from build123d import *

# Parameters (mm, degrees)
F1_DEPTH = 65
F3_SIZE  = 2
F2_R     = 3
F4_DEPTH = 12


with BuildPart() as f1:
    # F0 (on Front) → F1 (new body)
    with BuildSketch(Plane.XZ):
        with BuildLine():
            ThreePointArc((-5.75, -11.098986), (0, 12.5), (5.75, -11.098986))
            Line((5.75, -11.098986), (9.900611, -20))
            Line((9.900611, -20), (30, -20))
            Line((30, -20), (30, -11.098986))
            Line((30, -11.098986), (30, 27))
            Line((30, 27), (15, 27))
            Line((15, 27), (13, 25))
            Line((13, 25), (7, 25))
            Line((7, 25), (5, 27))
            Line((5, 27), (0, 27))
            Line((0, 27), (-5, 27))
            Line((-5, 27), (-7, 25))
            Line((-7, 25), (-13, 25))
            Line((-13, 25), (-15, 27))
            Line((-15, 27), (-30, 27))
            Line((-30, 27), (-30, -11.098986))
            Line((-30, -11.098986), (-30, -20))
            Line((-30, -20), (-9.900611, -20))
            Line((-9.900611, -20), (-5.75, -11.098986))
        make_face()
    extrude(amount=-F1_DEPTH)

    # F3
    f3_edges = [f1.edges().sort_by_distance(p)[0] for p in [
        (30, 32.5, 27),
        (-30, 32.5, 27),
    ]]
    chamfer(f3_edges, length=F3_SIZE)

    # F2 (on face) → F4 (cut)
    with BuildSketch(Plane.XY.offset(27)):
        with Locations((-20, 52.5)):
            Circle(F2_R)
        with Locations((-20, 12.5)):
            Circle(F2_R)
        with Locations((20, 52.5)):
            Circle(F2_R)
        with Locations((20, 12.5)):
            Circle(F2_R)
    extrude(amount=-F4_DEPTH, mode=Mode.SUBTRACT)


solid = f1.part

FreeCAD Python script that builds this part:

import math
import FreeCAD as App
import Part
import Sketcher
from FreeCAD import Vector
Q = App.Units.Quantity


def edges_at(feature, points):
    """Names of the edges that pass closest to the given points."""
    edges = feature.Shape.Edges
    near = lambda p: min(range(len(edges)), key=lambda i: edges[i].distToShape(Part.Vertex(*p))[0])
    return sorted({f"Edge{near(p) + 1}" for p in points})

doc = App.newDocument("Part")
params = doc.addObject("Spreadsheet::Sheet", "Params")
for row, (alias, value) in enumerate([
    ("sketch1_radius", "12.5 mm"),
    ("sketch1_width", "15 mm"),
    ("sketch1_width2", "6 mm"),
    ("sketch1_width3", "10 mm"),
    ("sketch1_height", "47 mm"),
    ("pad1_length", "65 mm"),
    ("chamfer_size", "2 mm"),
    ("sketch2_diameter", "6 mm"),
    ("pocket1_length", "12 mm"),
], start=1):
    params.set(f"A{row}", alias)
    params.set(f"B{row}", "=" + value)
    params.setAlias(f"B{row}", alias)

body = doc.addObject("PartDesign::Body", "Body")

sketch1 = body.newObject("Sketcher::SketchObject", "Sketch")
sketch1.AttachmentSupport = (doc.getObject("XZ_Plane"), [""])
sketch1.MapMode = "FlatFace"
sketch1.addGeometry(Part.ArcOfCircle(Part.Circle(Vector(0, 0, 0), Vector(0, 0, 1), 12.5), math.radians(-63), math.radians(243)), False)
sketch1.addGeometry(Part.LineSegment(Vector(5.8, -11.1, 0), Vector(9.9, -20, 0)), False)
sketch1.addGeometry(Part.LineSegment(Vector(9.9, -20, 0), Vector(30, -20, 0)), False)
sketch1.addGeometry(Part.LineSegment(Vector(30, -20, 0), Vector(30, 27, 0)), False)
sketch1.addGeometry(Part.LineSegment(Vector(30, 27, 0), Vector(15, 27, 0)), False)
sketch1.addGeometry(Part.LineSegment(Vector(15, 27, 0), Vector(13, 25, 0)), False)
sketch1.addGeometry(Part.LineSegment(Vector(13, 25, 0), Vector(7, 25, 0)), False)
sketch1.addGeometry(Part.LineSegment(Vector(7, 25, 0), Vector(5, 27, 0)), False)
sketch1.addGeometry(Part.LineSegment(Vector(5, 27, 0), Vector(-5, 27, 0)), False)
sketch1.addGeometry(Part.LineSegment(Vector(-5, 27, 0), Vector(-7, 25, 0)), False)
sketch1.addGeometry(Part.LineSegment(Vector(-7, 25, 0), Vector(-13, 25, 0)), False)
sketch1.addGeometry(Part.LineSegment(Vector(-13, 25, 0), Vector(-15, 27, 0)), False)
sketch1.addGeometry(Part.LineSegment(Vector(-15, 27, 0), Vector(-30, 27, 0)), False)
sketch1.addGeometry(Part.LineSegment(Vector(-30, 27, 0), Vector(-30, -20, 0)), False)
sketch1.addGeometry(Part.LineSegment(Vector(-30, -20, 0), Vector(-9.9, -20, 0)), False)
sketch1.addGeometry(Part.LineSegment(Vector(-9.9, -20, 0), Vector(-5.8, -11.1, 0)), False)
sketch1.addConstraint(Sketcher.Constraint("Coincident", 0, 1, 1, 1))
sketch1.addConstraint(Sketcher.Constraint("Coincident", 1, 2, 2, 1))
sketch1.addConstraint(Sketcher.Constraint("Coincident", 2, 2, 3, 1))
sketch1.addConstraint(Sketcher.Constraint("Coincident", 3, 2, 4, 1))
sketch1.addConstraint(Sketcher.Constraint("Coincident", 4, 2, 5, 1))
sketch1.addConstraint(Sketcher.Constraint("Coincident", 5, 2, 6, 1))
sketch1.addConstraint(Sketcher.Constraint("Coincident", 6, 2, 7, 1))
sketch1.addConstraint(Sketcher.Constraint("Coincident", 7, 2, 8, 1))
sketch1.addConstraint(Sketcher.Constraint("Coincident", 8, 2, 9, 1))
sketch1.addConstraint(Sketcher.Constraint("Coincident", 9, 2, 10, 1))
sketch1.addConstraint(Sketcher.Constraint("Coincident", 10, 2, 11, 1))
sketch1.addConstraint(Sketcher.Constraint("Coincident", 11, 2, 12, 1))
sketch1.addConstraint(Sketcher.Constraint("Coincident", 12, 2, 13, 1))
sketch1.addConstraint(Sketcher.Constraint("Coincident", 13, 2, 14, 1))
sketch1.addConstraint(Sketcher.Constraint("Coincident", 14, 2, 15, 1))
sketch1.addConstraint(Sketcher.Constraint("Coincident", 15, 2, 0, 2))
sketch1.addConstraint(Sketcher.Constraint("Horizontal", 2))
sketch1.addConstraint(Sketcher.Constraint("Vertical", 3))
sketch1.addConstraint(Sketcher.Constraint("Horizontal", 4))
sketch1.addConstraint(Sketcher.Constraint("Horizontal", 6))
sketch1.addConstraint(Sketcher.Constraint("Horizontal", 8))
sketch1.addConstraint(Sketcher.Constraint("Horizontal", 10))
sketch1.addConstraint(Sketcher.Constraint("Horizontal", 12))
sketch1.addConstraint(Sketcher.Constraint("Vertical", 13))
sketch1.addConstraint(Sketcher.Constraint("Horizontal", 14))
sketch1.addConstraint(Sketcher.Constraint("Coincident", 0, 3, -1, 1))
sketch1.addConstraint(Sketcher.Constraint("Symmetric", 6, 2, 9, 2, -2))
sketch1.addConstraint(Sketcher.Constraint("Symmetric", 4, 2, 11, 2, -2))
sketch1.addConstraint(Sketcher.Constraint("Symmetric", 2, 2, 13, 2, -2))
sketch1.addConstraint(Sketcher.Constraint("Perpendicular", 5, 7))
sketch1.addConstraint(Sketcher.Constraint("Perpendicular", 7, 9))
sketch1.addConstraint(Sketcher.Constraint("Perpendicular", 9, 11))
sketch1.addConstraint(Sketcher.Constraint("Horizontal", 4, 2, 7, 2))
sketch1.addConstraint(Sketcher.Constraint("Horizontal", 0, 1, 15, 2))
sketch1.addConstraint(Sketcher.Constraint("Equal", 6, 10))
sketch1.addConstraint(Sketcher.Constraint("Equal", 2, 14))
sketch1.addConstraint(Sketcher.Constraint("Radius", 0, 12.5))
sketch1.addConstraint(Sketcher.Constraint("DistanceX", 4, 2, 4, 1, 15.0))
sketch1.addConstraint(Sketcher.Constraint("DistanceX", 6, 2, 6, 1, 6.0))
sketch1.addConstraint(Sketcher.Constraint("DistanceX", 8, 2, 8, 1, 10.0))
sketch1.addConstraint(Sketcher.Constraint("DistanceY", 3, 1, 3, 2, 47.0))
sketch1.addConstraint(Sketcher.Constraint("Angle", 1, Q("-65 deg")))
sketch1.addConstraint(Sketcher.Constraint("DistanceY", 1, 2, -1, 1, 20.0))
sketch1.addConstraint(Sketcher.Constraint("DistanceX", -1, 1, 2, 2, 30.0))
sketch1.addConstraint(Sketcher.Constraint("DistanceX", 15, 2, 0, 1, 11.5))
sketch1.setExpression("Constraints[36]", "Params.sketch1_radius")
sketch1.setExpression("Constraints[37]", "Params.sketch1_width")
sketch1.setExpression("Constraints[38]", "Params.sketch1_width2")
sketch1.setExpression("Constraints[39]", "Params.sketch1_width3")
sketch1.setExpression("Constraints[40]", "Params.sketch1_height")
pad1 = body.newObject("PartDesign::Pad", "Pad")
pad1.Profile = sketch1
pad1.setExpression("Length", "Params.pad1_length")
pad1.Reversed = True
doc.recompute()

chamfer = body.newObject("PartDesign::Chamfer", "Chamfer")
chamfer.Base = (pad1, edges_at(pad1, [(30, 32.5, 27), (-30, 32.5, 27)]))
chamfer.setExpression("Size", "Params.chamfer_size")

sketch2 = body.newObject("Sketcher::SketchObject", "Sketch001")
sketch2.AttachmentSupport = (doc.getObject("XY_Plane"), [""])
sketch2.MapMode = "FlatFace"
sketch2.AttachmentOffset = App.Placement(Vector(0, 0, 27), App.Rotation())
sketch2.addGeometry(Part.Circle(Vector(-20, 52.5, 0), Vector(0, 0, 1), 3), False)
sketch2.addGeometry(Part.Circle(Vector(-20, 12.5, 0), Vector(0, 0, 1), 3), False)
sketch2.addGeometry(Part.Circle(Vector(20, 52.5, 0), Vector(0, 0, 1), 3), False)
sketch2.addGeometry(Part.Circle(Vector(20, 12.5, 0), Vector(0, 0, 1), 3), False)
sketch2.addConstraint(Sketcher.Constraint("Equal", 0, 1))
sketch2.addConstraint(Sketcher.Constraint("Equal", 1, 2))
sketch2.addConstraint(Sketcher.Constraint("Equal", 2, 3))
sketch2.addConstraint(Sketcher.Constraint("Symmetric", 0, 3, 2, 3, -2))
sketch2.addConstraint(Sketcher.Constraint("Symmetric", 1, 3, 3, 3, -2))
sketch2.addConstraint(Sketcher.Constraint("Vertical", 0, 3, 1, 3))
sketch2.addConstraint(Sketcher.Constraint("Diameter", 0, 6.0))
sketch2.addConstraint(Sketcher.Constraint("DistanceX", 0, 3, -1, 1, 20.0))
sketch2.addConstraint(Sketcher.Constraint("DistanceY", 1, 3, 0, 3, 40.0))
sketch2.addConstraint(Sketcher.Constraint("DistanceY", -1, 1, 0, 3, 52.5))
sketch2.setExpression("Constraints[6]", "Params.sketch2_diameter")
pocket1 = body.newObject("PartDesign::Pocket", "Pocket")
pocket1.Profile = sketch2
pocket1.setExpression("Length", "Params.pocket1_length")

doc.recompute()
